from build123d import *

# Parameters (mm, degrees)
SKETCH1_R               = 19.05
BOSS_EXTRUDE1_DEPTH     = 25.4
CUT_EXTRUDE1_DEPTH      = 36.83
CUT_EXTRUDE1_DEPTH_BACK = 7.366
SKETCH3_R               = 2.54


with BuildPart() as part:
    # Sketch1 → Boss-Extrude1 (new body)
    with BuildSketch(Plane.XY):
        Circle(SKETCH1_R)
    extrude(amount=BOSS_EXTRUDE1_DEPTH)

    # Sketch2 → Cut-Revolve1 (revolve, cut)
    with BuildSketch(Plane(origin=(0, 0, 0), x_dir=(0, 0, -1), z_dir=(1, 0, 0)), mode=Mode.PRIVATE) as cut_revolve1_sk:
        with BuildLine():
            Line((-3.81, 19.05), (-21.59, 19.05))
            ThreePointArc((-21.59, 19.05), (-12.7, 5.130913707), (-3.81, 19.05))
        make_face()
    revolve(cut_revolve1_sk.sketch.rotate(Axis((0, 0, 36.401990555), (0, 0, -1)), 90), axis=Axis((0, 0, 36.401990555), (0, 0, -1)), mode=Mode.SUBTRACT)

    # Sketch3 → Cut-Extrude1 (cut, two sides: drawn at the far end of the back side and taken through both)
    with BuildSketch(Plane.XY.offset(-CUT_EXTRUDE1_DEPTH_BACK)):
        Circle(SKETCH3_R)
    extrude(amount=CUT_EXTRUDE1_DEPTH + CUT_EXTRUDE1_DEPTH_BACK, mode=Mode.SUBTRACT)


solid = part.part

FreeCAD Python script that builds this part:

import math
import FreeCAD as App
import Part
import Sketcher

V = App.Vector
Q = App.Units.Quantity

doc = App.newDocument("Part")
body = doc.addObject("PartDesign::Body", "Body")

sketch1 = body.newObject("Sketcher::SketchObject", "Sketch")
sketch1.AttachmentSupport = (doc.getObject("XY_Plane"), [""])
sketch1.MapMode = "FlatFace"
sketch1.addGeometry(Part.Circle(V(0, 0, 0), V(0, 0, 1), 19), False)
sketch1.addConstraint(Sketcher.Constraint("Coincident", 0, 3, -1, 1))
sketch1.addConstraint(Sketcher.Constraint("Diameter", 0, Q("1.5 in")))
pad1 = body.newObject("PartDesign::Pad", "Pad")
pad1.Profile = sketch1
pad1.Length = Q("1 in")

sketch2 = body.newObject("Sketcher::SketchObject", "Sketch001")
sketch2.AttachmentSupport = (doc.getObject("YZ_Plane"), [""])
sketch2.MapMode = "FlatFace"
sketch2.addGeometry(Part.LineSegment(V(19, 4, 0), V(19, 22, 0)), False)
sketch2.addGeometry(Part.ArcOfCircle(Part.Circle(V(15, 13, 0), V(0, 0, 1), 10), math.radians(65), math.radians(295)), False)
sketch2.addConstraint(Sketcher.Constraint("Coincident", 0, 1, 1, 2))
sketch2.addConstraint(Sketcher.Constraint("Coincident", 1, 1, 0, 2))
sketch2.addConstraint(Sketcher.Constraint("Vertical", 0))
sketch2.addConstraint(Sketcher.Constraint("DistanceY", 0, 1, 0, 2, Q("0.7 in")))
sketch2.addConstraint(Sketcher.Constraint("DistanceY", -1, 1, 1, 3, Q("0.5 in")))
sketch2.addConstraint(Sketcher.Constraint("DistanceX", -1, 1, 0, 1, Q("0.75 in")))
sketch2.addConstraint(Sketcher.Constraint("Radius", 1, 9.798526))
groove = body.newObject("PartDesign::Groove", "Groove")
groove.Profile = sketch2
groove.ReferenceAxis = (sketch2, ["V_Axis"])
groove.Angle = 360

sketch3 = body.newObject("Sketcher::SketchObject", "Sketch002")
sketch3.AttachmentSupport = (doc.getObject("XY_Plane"), [""])
sketch3.MapMode = "FlatFace"
sketch3.addGeometry(Part.Circle(V(0, 0, 0), V(0, 0, 1), 2.5), False)
sketch3.addConstraint(Sketcher.Constraint("Coincident", 0, 3, -1, 1))
sketch3.addConstraint(Sketcher.Constraint("Diameter", 0, Q("0.2 in")))
pocket1 = body.newObject("PartDesign::Pocket", "Pocket")
pocket1.Profile = sketch3
pocket1.Type = "ThroughAll"
pocket1.Midplane = True

doc.recompute()
